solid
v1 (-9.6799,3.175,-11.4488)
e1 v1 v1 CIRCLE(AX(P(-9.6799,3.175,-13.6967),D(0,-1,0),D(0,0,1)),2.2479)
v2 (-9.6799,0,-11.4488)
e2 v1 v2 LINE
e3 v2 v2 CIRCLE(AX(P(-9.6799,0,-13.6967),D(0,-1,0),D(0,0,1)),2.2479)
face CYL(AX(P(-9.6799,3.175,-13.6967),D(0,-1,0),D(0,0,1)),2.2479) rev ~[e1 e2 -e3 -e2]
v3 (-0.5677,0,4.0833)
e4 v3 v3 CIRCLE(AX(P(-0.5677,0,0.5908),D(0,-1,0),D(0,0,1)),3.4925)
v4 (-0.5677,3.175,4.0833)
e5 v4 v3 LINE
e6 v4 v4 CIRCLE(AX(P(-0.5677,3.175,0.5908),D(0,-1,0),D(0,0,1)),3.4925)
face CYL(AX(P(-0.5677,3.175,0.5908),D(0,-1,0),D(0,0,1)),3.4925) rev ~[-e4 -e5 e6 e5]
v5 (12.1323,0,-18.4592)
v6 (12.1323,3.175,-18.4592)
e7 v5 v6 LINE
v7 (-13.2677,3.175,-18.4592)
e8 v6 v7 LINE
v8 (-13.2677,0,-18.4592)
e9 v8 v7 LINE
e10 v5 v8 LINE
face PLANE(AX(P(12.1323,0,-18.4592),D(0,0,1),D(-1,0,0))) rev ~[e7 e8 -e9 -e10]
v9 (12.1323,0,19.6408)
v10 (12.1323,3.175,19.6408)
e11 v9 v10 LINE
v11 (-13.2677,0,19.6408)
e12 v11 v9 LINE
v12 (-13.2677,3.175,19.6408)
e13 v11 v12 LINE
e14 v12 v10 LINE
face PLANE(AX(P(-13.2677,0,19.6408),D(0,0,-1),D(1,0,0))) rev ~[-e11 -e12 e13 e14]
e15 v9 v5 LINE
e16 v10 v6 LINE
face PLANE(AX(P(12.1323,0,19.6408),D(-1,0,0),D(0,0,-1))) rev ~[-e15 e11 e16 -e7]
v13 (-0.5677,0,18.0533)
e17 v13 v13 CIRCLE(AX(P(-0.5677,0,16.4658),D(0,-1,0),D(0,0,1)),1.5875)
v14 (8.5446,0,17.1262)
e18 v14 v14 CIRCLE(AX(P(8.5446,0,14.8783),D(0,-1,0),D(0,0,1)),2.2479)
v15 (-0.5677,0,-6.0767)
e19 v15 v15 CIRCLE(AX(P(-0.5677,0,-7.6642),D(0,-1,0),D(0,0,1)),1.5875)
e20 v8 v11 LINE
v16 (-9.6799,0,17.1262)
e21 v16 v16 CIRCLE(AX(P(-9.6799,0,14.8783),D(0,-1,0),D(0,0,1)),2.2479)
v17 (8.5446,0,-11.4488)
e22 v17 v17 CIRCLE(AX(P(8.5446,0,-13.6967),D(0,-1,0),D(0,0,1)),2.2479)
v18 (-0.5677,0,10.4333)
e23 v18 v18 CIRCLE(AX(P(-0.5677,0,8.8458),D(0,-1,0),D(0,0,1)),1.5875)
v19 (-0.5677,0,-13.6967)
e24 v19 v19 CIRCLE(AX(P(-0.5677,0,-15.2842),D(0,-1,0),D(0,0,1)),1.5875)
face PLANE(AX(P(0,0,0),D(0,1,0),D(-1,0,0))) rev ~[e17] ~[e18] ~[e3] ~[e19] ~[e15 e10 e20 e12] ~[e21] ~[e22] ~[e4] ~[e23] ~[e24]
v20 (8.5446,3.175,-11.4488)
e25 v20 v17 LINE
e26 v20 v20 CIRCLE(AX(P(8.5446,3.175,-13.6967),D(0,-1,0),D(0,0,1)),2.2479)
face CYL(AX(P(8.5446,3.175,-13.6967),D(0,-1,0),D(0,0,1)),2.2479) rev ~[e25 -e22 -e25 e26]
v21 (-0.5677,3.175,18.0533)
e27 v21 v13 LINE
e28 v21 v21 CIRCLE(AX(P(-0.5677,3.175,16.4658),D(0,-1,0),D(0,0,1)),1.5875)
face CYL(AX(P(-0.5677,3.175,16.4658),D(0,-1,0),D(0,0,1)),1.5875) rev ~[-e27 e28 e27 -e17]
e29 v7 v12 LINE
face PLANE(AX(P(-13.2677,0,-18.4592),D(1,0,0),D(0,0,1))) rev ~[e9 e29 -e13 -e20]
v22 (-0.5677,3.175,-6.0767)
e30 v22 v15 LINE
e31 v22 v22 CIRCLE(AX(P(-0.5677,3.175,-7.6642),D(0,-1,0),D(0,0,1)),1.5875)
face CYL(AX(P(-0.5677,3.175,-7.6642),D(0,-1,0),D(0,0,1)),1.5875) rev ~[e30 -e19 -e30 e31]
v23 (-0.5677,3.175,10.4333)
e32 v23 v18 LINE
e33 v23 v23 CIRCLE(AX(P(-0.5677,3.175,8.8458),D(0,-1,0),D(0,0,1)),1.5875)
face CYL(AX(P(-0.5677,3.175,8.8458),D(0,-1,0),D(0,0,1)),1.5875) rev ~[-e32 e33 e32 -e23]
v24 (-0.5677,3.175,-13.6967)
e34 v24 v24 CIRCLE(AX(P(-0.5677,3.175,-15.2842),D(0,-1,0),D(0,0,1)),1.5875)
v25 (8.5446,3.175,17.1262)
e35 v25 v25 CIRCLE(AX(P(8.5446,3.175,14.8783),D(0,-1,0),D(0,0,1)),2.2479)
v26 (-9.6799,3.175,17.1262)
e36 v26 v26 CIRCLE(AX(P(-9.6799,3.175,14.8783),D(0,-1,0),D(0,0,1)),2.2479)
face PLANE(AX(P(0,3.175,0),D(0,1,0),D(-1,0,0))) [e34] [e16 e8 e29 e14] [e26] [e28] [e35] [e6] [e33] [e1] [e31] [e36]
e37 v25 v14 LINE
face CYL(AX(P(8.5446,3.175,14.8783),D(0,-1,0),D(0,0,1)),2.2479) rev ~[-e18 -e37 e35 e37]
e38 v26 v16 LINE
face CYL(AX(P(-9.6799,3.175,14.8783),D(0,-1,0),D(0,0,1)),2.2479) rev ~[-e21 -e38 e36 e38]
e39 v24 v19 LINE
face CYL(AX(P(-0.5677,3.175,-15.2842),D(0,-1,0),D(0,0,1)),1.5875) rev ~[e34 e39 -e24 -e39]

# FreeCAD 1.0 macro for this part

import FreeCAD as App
import Part
import Sketcher

V = App.Vector
Q = App.Units.Quantity


def add_polygon(sketch, points):
    """Adds a closed chain of lines whose ends are joined by coincident constraints."""
    first, n = sketch.GeometryCount, len(points)
    for a, b in zip(points, points[1:] + points[:1]):
        sketch.addGeometry(Part.LineSegment(App.Vector(*a, 0), App.Vector(*b, 0)), False)
    for i in range(n):
        sketch.addConstraint(Sketcher.Constraint("Coincident", first + i, 2, first + (i + 1) % n, 1))

doc = App.newDocument("Part")
params = doc.addObject("Spreadsheet::Sheet", "Params")
for row, (alias, value) in enumerate([
    ("sketch1_width", "1 in"),
    ("sketch1_height", "1.5 in"),
    ("pad1_length", "0.125 in"),
    ("sketch2_diameter", "0.177 in"),
    ("hole_diameter", "0.177 in"),
    ("hole_depth", "0.125 in"),
    ("sketch3_diameter", "0.177 in"),
    ("hole2_diameter", "0.177 in"),
    ("hole2_depth", "0.125 in"),
    ("sketch4_diameter", "0.177 in"),
    ("hole3_diameter", "0.177 in"),
    ("hole3_depth", "0.125 in"),
    ("sketch5_diameter", "0.177 in"),
    ("hole4_diameter", "0.177 in"),
    ("hole4_depth", "0.125 in"),
    ("sketch6_diameter", "0.125 in"),
    ("hole5_diameter", "0.125 in"),
    ("hole5_depth", "0.125 in"),
    ("sketch7_diameter", "0.125 in"),
    ("hole6_diameter", "0.125 in"),
    ("hole6_depth", "0.125 in"),
    ("sketch8_diameter", "0.275 in"),
    ("hole7_diameter", "0.275 in"),
    ("hole7_depth", "0.125 in"),
    ("sketch9_diameter", "0.125 in"),
    ("hole8_diameter", "0.125 in"),
    ("hole8_depth", "0.125 in"),
    ("sketch10_diameter", "0.125 in"),
    ("hole9_diameter", "0.125 in"),
    ("hole9_depth", "0.125 in"),
], start=1):
    params.set(f"A{row}", alias)
    params.set(f"B{row}", "=" + value)
    params.setAlias(f"B{row}", alias)

body = doc.addObject("PartDesign::Body", "Body")

# Sketch on XZ plane
sketch1 = body.newObject("Sketcher::SketchObject", "Sketch")
sketch1.AttachmentSupport = (doc.getObject("XZ_Plane"), [""])
sketch1.MapMode = "FlatFace"
add_polygon(sketch1, [(-13, -18), (-13, 20), (12, 20), (12, -18)])  # lines 0-3
sketch1.addConstraint(Sketcher.Constraint("Vertical", 0))
sketch1.addConstraint(Sketcher.Constraint("Horizontal", 1))
sketch1.addConstraint(Sketcher.Constraint("Vertical", 2))
sketch1.addConstraint(Sketcher.Constraint("Horizontal", 3))
sketch1.addConstraint(Sketcher.Constraint("DistanceX", 1, 1, 1, 2, Q("1 in")))
sketch1.addConstraint(Sketcher.Constraint("DistanceY", 0, 1, 0, 2, Q("1.5 in")))
sketch1.addConstraint(Sketcher.Constraint("DistanceX", 0, 2, -1, 1, Q("13.2677 mm")))
sketch1.addConstraint(Sketcher.Constraint("DistanceY", -1, 1, 0, 2, Q("19.6408 mm")))
sketch1.setExpression("Constraints[8]", "Params.sketch1_width")
sketch1.setExpression("Constraints[9]", "Params.sketch1_height")
pad1 = body.newObject("PartDesign::Pad", "Pad")
pad1.Profile = sketch1
pad1.setExpression("Length", "Params.pad1_length")
pad1.Reversed = True

# Sketch on XZ plane
sketch2 = body.newObject("Sketcher::SketchObject", "Sketch001")
sketch2.AttachmentSupport = (doc.getObject("XZ_Plane"), [""])
sketch2.MapMode = "FlatFace"
sketch2.AttachmentOffset = App.Placement(V(0, 0, -0.125 * 25.4), App.Rotation())
sketch2.addGeometry(Part.Circle(V(-9.7, 14.9, 0), V(0, 0, 1), 2.2), False)
sketch2.addConstraint(Sketcher.Constraint("Diameter", 0, Q("0.177 in")))
sketch2.addConstraint(Sketcher.Constraint("DistanceX", 0, 3, -1, 1, Q("0.3811 in")))
sketch2.addConstraint(Sketcher.Constraint("DistanceY", -1, 1, 0, 3, Q("14.8783 mm")))
sketch2.setExpression("Constraints[0]", "Params.sketch2_diameter")
doc.recompute()
hole = body.newObject("PartDesign::Hole", "Hole")
hole.Profile = sketch2
hole.ThreadType = "None"
hole.setExpression("Diameter", "Params.hole_diameter")
hole.DepthType = "Dimension"
hole.setExpression("Depth", "Params.hole_depth")
hole.DrillPoint = "Flat"
hole.Reversed = True

# Sketch on XZ plane
sketch3 = body.newObject("Sketcher::SketchObject", "Sketch002")
sketch3.AttachmentSupport = (doc.getObject("XZ_Plane"), [""])
sketch3.MapMode = "FlatFace"
sketch3.AttachmentOffset = App.Placement(V(0, 0, -0.125 * 25.4), App.Rotation())
sketch3.addGeometry(Part.Circle(V(8.5, 14.9, 0), V(0, 0, 1), 2.2), False)
sketch3.addConstraint(Sketcher.Constraint("Diameter", 0, Q("0.177 in")))
sketch3.addConstraint(Sketcher.Constraint("DistanceX", -1, 1, 0, 3, Q("0.3364 in")))
sketch3.addConstraint(Sketcher.Constraint("DistanceY", -1, 1, 0, 3, Q("14.8783 mm")))
sketch3.setExpression("Constraints[0]", "Params.sketch3_diameter")
doc.recompute()
hole2 = body.newObject("PartDesign::Hole", "Hole001")
hole2.Profile = sketch3
hole2.ThreadType = "None"
hole2.setExpression("Diameter", "Params.hole2_diameter")
hole2.DepthType = "Dimension"
hole2.setExpression("Depth", "Params.hole2_depth")
hole2.DrillPoint = "Flat"
hole2.Reversed = True

# Sketch on XZ plane
sketch4 = body.newObject("Sketcher::SketchObject", "Sketch003")
sketch4.AttachmentSupport = (doc.getObject("XZ_Plane"), [""])
sketch4.MapMode = "FlatFace"
sketch4.AttachmentOffset = App.Placement(V(0, 0, -0.125 * 25.4), App.Rotation())
sketch4.addGeometry(Part.Circle(V(-9.7, -13.7, 0), V(0, 0, 1), 2.2), False)
sketch4.addConstraint(Sketcher.Constraint("Diameter", 0, Q("0.177 in")))
sketch4.addConstraint(Sketcher.Constraint("DistanceX", 0, 3, -1, 1, Q("0.3811 in")))
sketch4.addConstraint(Sketcher.Constraint("DistanceY", 0, 3, -1, 1, Q("13.6967 mm")))
sketch4.setExpression("Constraints[0]", "Params.sketch4_diameter")
doc.recompute()
hole3 = body.newObject("PartDesign::Hole", "Hole002")
hole3.Profile = sketch4
hole3.ThreadType = "None"
hole3.setExpression("Diameter", "Params.hole3_diameter")
hole3.DepthType = "Dimension"
hole3.setExpression("Depth", "Params.hole3_depth")
hole3.DrillPoint = "Flat"
hole3.Reversed = True

# Sketch on XZ plane
sketch5 = body.newObject("Sketcher::SketchObject", "Sketch004")
sketch5.AttachmentSupport = (doc.getObject("XZ_Plane"), [""])
sketch5.MapMode = "FlatFace"
sketch5.AttachmentOffset = App.Placement(V(0, 0, -0.125 * 25.4), App.Rotation())
sketch5.addGeometry(Part.Circle(V(8.5, -13.7, 0), V(0, 0, 1), 2.2), False)
sketch5.addConstraint(Sketcher.Constraint("Diameter", 0, Q("0.177 in")))
sketch5.addConstraint(Sketcher.Constraint("DistanceX", -1, 1, 0, 3, Q("0.3364 in")))
sketch5.addConstraint(Sketcher.Constraint("DistanceY", 0, 3, -1, 1, Q("13.6967 mm")))
sketch5.setExpression("Constraints[0]", "Params.sketch5_diameter")
doc.recompute()
hole4 = body.newObject("PartDesign::Hole", "Hole003")
hole4.Profile = sketch5
hole4.ThreadType = "None"
hole4.setExpression("Diameter", "Params.hole4_diameter")
hole4.DepthType = "Dimension"
hole4.setExpression("Depth", "Params.hole4_depth")
hole4.DrillPoint = "Flat"
hole4.Reversed = True

# Sketch on XZ plane
sketch6 = body.newObject("Sketcher::SketchObject", "Sketch005")
sketch6.AttachmentSupport = (doc.getObject("XZ_Plane"), [""])
sketch6.MapMode = "FlatFace"
sketch6.AttachmentOffset = App.Placement(V(0, 0, -0.125 * 25.4), App.Rotation())
sketch6.addGeometry(Part.Circle(V(-0.6, 8.8, 0), V(0, 0, 1), 1.6), False)
sketch6.addConstraint(Sketcher.Constraint("Diameter", 0, Q("0.125 in")))
sketch6.addConstraint(Sketcher.Constraint("DistanceX", 0, 3, -1, 1, Q("0.5677 mm")))
sketch6.addConstraint(Sketcher.Constraint("DistanceY", -1, 1, 0, 3, Q("8.8458 mm")))
sketch6.setExpression("Constraints[0]", "Params.sketch6_diameter")
doc.recompute()
hole5 = body.newObject("PartDesign::Hole", "Hole004")
hole5.Profile = sketch6
hole5.ThreadType = "None"
hole5.setExpression("Diameter", "Params.hole5_diameter")
hole5.DepthType = "Dimension"
hole5.setExpression("Depth", "Params.hole5_depth")
hole5.DrillPoint = "Flat"
hole5.Reversed = True

# Sketch on XZ plane
sketch7 = body.newObject("Sketcher::SketchObject", "Sketch006")
sketch7.AttachmentSupport = (doc.getObject("XZ_Plane"), [""])
sketch7.MapMode = "FlatFace"
sketch7.AttachmentOffset = App.Placement(V(0, 0, -0.125 * 25.4), App.Rotation())
sketch7.addGeometry(Part.Circle(V(-0.6, -7.7, 0), V(0, 0, 1), 1.6), False)
sketch7.addConstraint(Sketcher.Constraint("Diameter", 0, Q("0.125 in")))
sketch7.addConstraint(Sketcher.Constraint("DistanceX", 0, 3, -1, 1, Q("0.5677 mm")))
sketch7.addConstraint(Sketcher.Constraint("DistanceY", 0, 3, -1, 1, Q("7.6642 mm")))
sketch7.setExpression("Constraints[0]", "Params.sketch7_diameter")
doc.recompute()
hole6 = body.newObject("PartDesign::Hole", "Hole005")
hole6.Profile = sketch7
hole6.ThreadType = "None"
hole6.setExpression("Diameter", "Params.hole6_diameter")
hole6.DepthType = "Dimension"
hole6.setExpression("Depth", "Params.hole6_depth")
hole6.DrillPoint = "Flat"
hole6.Reversed = True

# Sketch on XZ plane
sketch8 = body.newObject("Sketcher::SketchObject", "Sketch007")
sketch8.AttachmentSupport = (doc.getObject("XZ_Plane"), [""])
sketch8.MapMode = "FlatFace"
sketch8.AttachmentOffset = App.Placement(V(0, 0, -0.125 * 25.4), App.Rotation())
sketch8.addGeometry(Part.Circle(V(-0.6, 0.6, 0), V(0, 0, 1), 3.5), False)
sketch8.addConstraint(Sketcher.Constraint("Diameter", 0, Q("0.275 in")))
sketch8.addConstraint(Sketcher.Constraint("DistanceX", 0, 3, -1, 1, Q("0.5677 mm")))
sketch8.addConstraint(Sketcher.Constraint("DistanceY", -1, 1, 0, 3, Q("0.5908 mm")))
sketch8.setExpression("Constraints[0]", "Params.sketch8_diameter")
doc.recompute()
hole7 = body.newObject("PartDesign::Hole", "Hole006")
hole7.Profile = sketch8
hole7.ThreadType = "None"
hole7.setExpression("Diameter", "Params.hole7_diameter")
hole7.DepthType = "Dimension"
hole7.setExpression("Depth", "Params.hole7_depth")
hole7.DrillPoint = "Flat"
hole7.Reversed = True

# Sketch on XZ plane
sketch9 = body.newObject("Sketcher::SketchObject", "Sketch008")
sketch9.AttachmentSupport = (doc.getObject("XZ_Plane"), [""])
sketch9.MapMode = "FlatFace"
sketch9.AttachmentOffset = App.Placement(V(0, 0, -0.125 * 25.4), App.Rotation())
sketch9.addGeometry(Part.Circle(V(-0.6, 16.5, 0), V(0, 0, 1), 1.6), False)
sketch9.addConstraint(Sketcher.Constraint("Diameter", 0, Q("0.125 in")))
sketch9.addConstraint(Sketcher.Constraint("DistanceX", 0, 3, -1, 1, Q("0.5677 mm")))
sketch9.addConstraint(Sketcher.Constraint("DistanceY", -1, 1, 0, 3, Q("16.4658 mm")))
sketch9.setExpression("Constraints[0]", "Params.sketch9_diameter")
doc.recompute()
hole8 = body.newObject("PartDesign::Hole", "Hole007")
hole8.Profile = sketch9
hole8.ThreadType = "None"
hole8.setExpression("Diameter", "Params.hole8_diameter")
hole8.DepthType = "Dimension"
hole8.setExpression("Depth", "Params.hole8_depth")
hole8.DrillPoint = "Angled"
hole8.DrillPointAngle = 118
hole8.Reversed = True

# Sketch on XZ plane
sketch10 = body.newObject("Sketcher::SketchObject", "Sketch009")
sketch10.AttachmentSupport = (doc.getObject("XZ_Plane"), [""])
sketch10.MapMode = "FlatFace"
sketch10.AttachmentOffset = App.Placement(V(0, 0, -0.125 * 25.4), App.Rotation())
sketch10.addGeometry(Part.Circle(V(-0.6, -15.3, 0), V(0, 0, 1), 1.6), False)
sketch10.addConstraint(Sketcher.Constraint("Diameter", 0, Q("0.125 in")))
sketch10.addConstraint(Sketcher.Constraint("DistanceX", 0, 3, -1, 1, Q("0.5677 mm")))
sketch10.addConstraint(Sketcher.Constraint("DistanceY", 0, 3, -1, 1, Q("15.2842 mm")))
sketch10.setExpression("Constraints[0]", "Params.sketch10_diameter")
doc.recompute()
hole9 = body.newObject("PartDesign::Hole", "Hole008")
hole9.Profile = sketch10
hole9.ThreadType = "None"
hole9.setExpression("Diameter", "Params.hole9_diameter")
hole9.DepthType = "Dimension"
hole9.setExpression("Depth", "Params.hole9_depth")
hole9.DrillPoint = "Angled"
hole9.DrillPointAngle = 118
hole9.Reversed = True

doc.recompute()
